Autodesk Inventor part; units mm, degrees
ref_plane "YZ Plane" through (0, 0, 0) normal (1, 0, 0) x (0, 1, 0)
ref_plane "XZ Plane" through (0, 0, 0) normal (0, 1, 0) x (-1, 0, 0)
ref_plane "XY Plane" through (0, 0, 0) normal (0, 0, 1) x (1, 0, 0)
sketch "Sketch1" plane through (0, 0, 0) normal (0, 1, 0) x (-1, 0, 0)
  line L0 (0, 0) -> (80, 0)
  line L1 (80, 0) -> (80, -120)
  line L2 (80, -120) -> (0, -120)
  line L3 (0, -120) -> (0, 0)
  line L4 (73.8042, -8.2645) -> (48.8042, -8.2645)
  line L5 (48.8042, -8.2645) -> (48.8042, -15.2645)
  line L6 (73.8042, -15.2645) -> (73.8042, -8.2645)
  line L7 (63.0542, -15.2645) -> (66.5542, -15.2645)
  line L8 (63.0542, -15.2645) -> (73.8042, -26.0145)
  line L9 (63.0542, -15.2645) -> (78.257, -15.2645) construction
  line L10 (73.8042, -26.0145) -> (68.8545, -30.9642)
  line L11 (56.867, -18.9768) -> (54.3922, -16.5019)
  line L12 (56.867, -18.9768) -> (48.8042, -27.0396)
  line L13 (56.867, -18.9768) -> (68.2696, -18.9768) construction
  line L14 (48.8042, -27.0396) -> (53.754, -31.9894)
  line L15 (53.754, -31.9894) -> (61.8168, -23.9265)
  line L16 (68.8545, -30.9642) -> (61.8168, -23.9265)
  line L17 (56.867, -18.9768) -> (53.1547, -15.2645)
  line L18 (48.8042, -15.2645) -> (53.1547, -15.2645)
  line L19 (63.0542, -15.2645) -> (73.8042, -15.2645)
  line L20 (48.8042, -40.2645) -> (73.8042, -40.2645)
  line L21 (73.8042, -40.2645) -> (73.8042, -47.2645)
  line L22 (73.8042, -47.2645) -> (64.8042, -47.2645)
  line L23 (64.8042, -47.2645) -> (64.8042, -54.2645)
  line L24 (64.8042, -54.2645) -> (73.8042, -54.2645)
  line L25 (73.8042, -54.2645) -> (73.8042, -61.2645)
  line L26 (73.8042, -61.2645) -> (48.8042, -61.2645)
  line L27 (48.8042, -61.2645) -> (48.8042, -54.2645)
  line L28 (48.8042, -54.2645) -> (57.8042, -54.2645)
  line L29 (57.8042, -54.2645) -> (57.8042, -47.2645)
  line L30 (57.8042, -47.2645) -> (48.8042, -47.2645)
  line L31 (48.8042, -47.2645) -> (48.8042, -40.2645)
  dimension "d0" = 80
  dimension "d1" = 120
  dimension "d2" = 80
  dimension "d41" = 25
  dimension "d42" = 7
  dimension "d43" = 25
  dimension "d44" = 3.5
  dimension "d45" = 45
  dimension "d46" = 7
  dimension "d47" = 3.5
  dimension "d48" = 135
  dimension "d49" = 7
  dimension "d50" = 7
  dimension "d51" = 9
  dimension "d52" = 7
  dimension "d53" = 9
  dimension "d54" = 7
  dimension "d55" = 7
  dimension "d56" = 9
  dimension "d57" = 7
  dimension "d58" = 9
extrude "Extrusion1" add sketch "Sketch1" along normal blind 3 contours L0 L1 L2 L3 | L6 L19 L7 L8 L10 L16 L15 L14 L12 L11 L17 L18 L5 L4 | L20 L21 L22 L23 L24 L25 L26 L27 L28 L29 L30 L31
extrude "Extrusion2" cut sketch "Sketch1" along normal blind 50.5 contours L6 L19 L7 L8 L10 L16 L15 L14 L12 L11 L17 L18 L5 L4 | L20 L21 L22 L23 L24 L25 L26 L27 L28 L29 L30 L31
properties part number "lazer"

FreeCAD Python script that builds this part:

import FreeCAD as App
import Part
import Sketcher
from FreeCAD import Vector
Q = App.Units.Quantity


def add_polygon(sketch, points):
    """Adds a closed chain of lines whose ends are joined by coincident constraints."""
    first, n = sketch.GeometryCount, len(points)
    for a, b in zip(points, points[1:] + points[:1]):
        sketch.addGeometry(Part.LineSegment(App.Vector(*a, 0), App.Vector(*b, 0)), False)
    for i in range(n):
        sketch.addConstraint(Sketcher.Constraint("Coincident", first + i, 2, first + (i + 1) % n, 1))

doc = App.newDocument("Part")
body = doc.addObject("PartDesign::Body", "Body")

sketch1 = body.newObject("Sketcher::SketchObject", "Sketch")
sketch1.AttachmentSupport = (doc.getObject("XZ_Plane"), [""])
sketch1.MapMode = "FlatFace"
add_polygon(sketch1, [(-80, 0), (0, 0), (0, -120), (-80, -120)])
sketch1.addConstraint(Sketcher.Constraint("Horizontal", 0))
sketch1.addConstraint(Sketcher.Constraint("Vertical", 1))
sketch1.addConstraint(Sketcher.Constraint("Horizontal", 2))
sketch1.addConstraint(Sketcher.Constraint("Vertical", 3))
sketch1.addConstraint(Sketcher.Constraint("Coincident", 0, 2, -1, 1))
sketch1.addConstraint(Sketcher.Constraint("DistanceX", 0, 1, 0, 2, Q("80 mm")))
sketch1.addConstraint(Sketcher.Constraint("DistanceY", 1, 2, 1, 1, Q("120 mm")))
pad1 = body.newObject("PartDesign::Pad", "Pad")
pad1.Profile = sketch1
pad1.Length = 3
pad1.Reversed = True

sketch2 = body.newObject("Sketcher::SketchObject", "Sketch001")
sketch2.AttachmentSupport = (doc.getObject("XZ_Plane"), [""])
sketch2.MapMode = "FlatFace"
add_polygon(sketch2, [(-73.8042, -15.2645), (-73.8042, -8.2645), (-48.8042, -8.2645), (-48.8042, -15.2645), (-53.1547, -15.2645), (-54.3922, -16.5019), (-56.867, -18.9768), (-48.8042, -27.0396), (-53.754, -31.9894), (-61.8168, -23.9265), (-68.8545, -30.9642), (-73.8042, -26.0145), (-63.0542, -15.2645)])
add_polygon(sketch2, [(-73.8042, -40.2645), (-48.8042, -40.2645), (-48.8042, -47.2645), (-57.8042, -47.2645), (-57.8042, -54.2645), (-48.8042, -54.2645), (-48.8042, -61.2645), (-73.8042, -61.2645), (-73.8042, -54.2645), (-64.8042, -54.2645), (-64.8042, -47.2645), (-73.8042, -47.2645)])
sketch2.addConstraint(Sketcher.Constraint("Vertical", 0))
sketch2.addConstraint(Sketcher.Constraint("Horizontal", 1))
sketch2.addConstraint(Sketcher.Constraint("Vertical", 2))
sketch2.addConstraint(Sketcher.Constraint("Horizontal", 3))
sketch2.addConstraint(Sketcher.Constraint("Horizontal", 12))
sketch2.addConstraint(Sketcher.Constraint("Horizontal", 13))
sketch2.addConstraint(Sketcher.Constraint("Vertical", 14))
sketch2.addConstraint(Sketcher.Constraint("Horizontal", 15))
sketch2.addConstraint(Sketcher.Constraint("Vertical", 16))
sketch2.addConstraint(Sketcher.Constraint("Horizontal", 17))
sketch2.addConstraint(Sketcher.Constraint("Vertical", 18))
sketch2.addConstraint(Sketcher.Constraint("Horizontal", 19))
sketch2.addConstraint(Sketcher.Constraint("Vertical", 20))
sketch2.addConstraint(Sketcher.Constraint("Horizontal", 21))
sketch2.addConstraint(Sketcher.Constraint("Vertical", 22))
sketch2.addConstraint(Sketcher.Constraint("Horizontal", 23))
sketch2.addConstraint(Sketcher.Constraint("Vertical", 24))
sketch2.addConstraint(Sketcher.Constraint("Parallel", 4, 5))
sketch2.addConstraint(Sketcher.Constraint("Perpendicular", 5, 6))
sketch2.addConstraint(Sketcher.Constraint("Perpendicular", 6, 7))
sketch2.addConstraint(Sketcher.Constraint("Perpendicular", 7, 8))
sketch2.addConstraint(Sketcher.Constraint("Perpendicular", 8, 9))
sketch2.addConstraint(Sketcher.Constraint("Perpendicular", 9, 10))
sketch2.addConstraint(Sketcher.Constraint("Perpendicular", 10, 11))
sketch2.addConstraint(Sketcher.Constraint("Horizontal", 3, 2, 11, 2))
sketch2.addConstraint(Sketcher.Constraint("Horizontal", 17, 2, 20, 2))
sketch2.addConstraint(Sketcher.Constraint("Horizontal", 15, 2, 22, 2))
sketch2.addConstraint(Sketcher.Constraint("Vertical", 2, 2, 6, 2))
sketch2.addConstraint(Sketcher.Constraint("Vertical", 0, 2, 10, 2))
sketch2.addConstraint(Sketcher.Constraint("Vertical", 6, 2, 13, 2))
sketch2.addConstraint(Sketcher.Constraint("Vertical", 14, 2, 17, 2))
sketch2.addConstraint(Sketcher.Constraint("Vertical", 12, 2, 19, 2))
sketch2.addConstraint(Sketcher.Constraint("Vertical", 20, 2, 23, 2))
sketch2.addConstraint(Sketcher.Constraint("Equal", 17, 21))
sketch2.addConstraint(Sketcher.Constraint("Equal", 2, 14))
sketch2.addConstraint(Sketcher.Constraint("Equal", 14, 16))
sketch2.addConstraint(Sketcher.Constraint("Equal", 16, 18))
sketch2.addConstraint(Sketcher.Constraint("Equal", 6, 8))
sketch2.addConstraint(Sketcher.Constraint("Equal", 7, 10))
sketch2.addConstraint(Sketcher.Constraint("DistanceX", 1, 1, 1, 2, Q("25 mm")))
sketch2.addConstraint(Sketcher.Constraint("DistanceX", 15, 2, 15, 1, Q("9 mm")))
sketch2.addConstraint(Sketcher.Constraint("DistanceY", 0, 1, 0, 2, Q("7 mm")))
sketch2.addConstraint(Sketcher.Constraint("Angle", 4, Q("-135 deg")))
sketch2.addConstraint(Sketcher.Constraint("Distance", 7, Q("7 mm")))
sketch2.addConstraint(Sketcher.Constraint("Distance", 5, Q("3.5 mm")))
sketch2.addConstraint(Sketcher.Constraint("DistanceX", 12, 2, 12, 1, Q("10.75 mm")))
sketch2.addConstraint(Sketcher.Constraint("Distance", 4, Q("1.75 mm")))
sketch2.addConstraint(Sketcher.Constraint("DistanceY", 24, 2, 10, 2, Q("14.25 mm")))
sketch2.addConstraint(Sketcher.Constraint("DistanceY", 4, 2, -1, 1, Q("16.502 mm")))
sketch2.addConstraint(Sketcher.Constraint("DistanceX", 5, 2, -1, 1, Q("56.867 mm")))
pocket1 = body.newObject("PartDesign::Pocket", "Pocket")
pocket1.Profile = sketch2
pocket1.Length = 50.5

doc.recompute()
